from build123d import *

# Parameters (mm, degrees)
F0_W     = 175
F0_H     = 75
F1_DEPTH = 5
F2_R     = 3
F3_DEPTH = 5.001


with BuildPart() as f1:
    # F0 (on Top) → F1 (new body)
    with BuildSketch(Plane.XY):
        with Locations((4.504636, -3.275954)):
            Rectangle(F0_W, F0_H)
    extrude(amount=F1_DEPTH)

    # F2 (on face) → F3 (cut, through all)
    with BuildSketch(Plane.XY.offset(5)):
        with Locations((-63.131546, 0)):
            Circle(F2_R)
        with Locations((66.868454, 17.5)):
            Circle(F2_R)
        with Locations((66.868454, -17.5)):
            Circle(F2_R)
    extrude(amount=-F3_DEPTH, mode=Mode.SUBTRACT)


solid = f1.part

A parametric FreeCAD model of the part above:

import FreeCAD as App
import Part
import Sketcher
Q = App.Units.Quantity


def add_polygon(sketch, points):
    """Adds a closed chain of lines whose ends are joined by coincident constraints."""
    first, n = sketch.GeometryCount, len(points)
    for a, b in zip(points, points[1:] + points[:1]):
        sketch.addGeometry(Part.LineSegment(App.Vector(*a, 0), App.Vector(*b, 0)), False)
    for i in range(n):
        sketch.addConstraint(Sketcher.Constraint("Coincident", first + i, 2, first + (i + 1) % n, 1))

doc = App.newDocument("Part")
body = doc.addObject("PartDesign::Body", "Body")

sketch1 = body.newObject("Sketcher::SketchObject", "Sketch")
sketch1.AttachmentSupport = (doc.getObject("XY_Plane"), [""])
sketch1.MapMode = "FlatFace"
add_polygon(sketch1, [(-83, 34), (-83, -41), (92, -41), (92, 34)])
sketch1.addConstraint([
    Sketcher.Constraint("Vertical", 0),
    Sketcher.Constraint("Horizontal", 1),
    Sketcher.Constraint("Vertical", 2),
    Sketcher.Constraint("Horizontal", 3),
    Sketcher.Constraint("DistanceX", 1, 1, 1, 2, Q("175 mm")),
    Sketcher.Constraint("DistanceY", 0, 2, 0, 1, Q("75 mm")),
    Sketcher.Constraint("DistanceX", 0, 2, -1, 1, Q("82.995364 mm")),
    Sketcher.Constraint("DistanceY", 0, 2, -1, 1, Q("40.775954 mm")),
])
pad1 = body.newObject("PartDesign::Pad", "Pad")
pad1.Profile = sketch1
pad1.Length = 5

sketch2 = body.newObject("Sketcher::SketchObject", "Sketch001")
sketch2.AttachmentSupport = (doc.getObject("XY_Plane"), [""])
sketch2.MapMode = "FlatFace"
sketch2.AttachmentOffset = App.Placement(App.Vector(0, 0, 5), App.Rotation())
sketch2.addGeometry([
    Part.Circle(App.Vector(-63.1, 0, 0), App.Vector(0, 0, 1), 3),
    Part.Circle(App.Vector(66.9, 17.5, 0), App.Vector(0, 0, 1), 3),
    Part.Circle(App.Vector(66.9, -17.5, 0), App.Vector(0, 0, 1), 3),
], False)
sketch2.addConstraint([
    Sketcher.Constraint("Equal", 0, 1),
    Sketcher.Constraint("Equal", 1, 2),
    Sketcher.Constraint("Symmetric", 1, 3, 2, 3, -1),
    Sketcher.Constraint("PointOnObject", 0, 3, -1),
    Sketcher.Constraint("Diameter", 0, Q("6 mm")),
    Sketcher.Constraint("DistanceX", 0, 3, 1, 3, Q("130 mm")),
    Sketcher.Constraint("DistanceY", 2, 3, 1, 3, Q("35 mm")),
    Sketcher.Constraint("DistanceX", 0, 3, -1, 1, Q("63.131546 mm")),
])
pocket1 = body.newObject("PartDesign::Pocket", "Pocket")
pocket1.Profile = sketch2
pocket1.Type = "ThroughAll"

doc.recompute()
